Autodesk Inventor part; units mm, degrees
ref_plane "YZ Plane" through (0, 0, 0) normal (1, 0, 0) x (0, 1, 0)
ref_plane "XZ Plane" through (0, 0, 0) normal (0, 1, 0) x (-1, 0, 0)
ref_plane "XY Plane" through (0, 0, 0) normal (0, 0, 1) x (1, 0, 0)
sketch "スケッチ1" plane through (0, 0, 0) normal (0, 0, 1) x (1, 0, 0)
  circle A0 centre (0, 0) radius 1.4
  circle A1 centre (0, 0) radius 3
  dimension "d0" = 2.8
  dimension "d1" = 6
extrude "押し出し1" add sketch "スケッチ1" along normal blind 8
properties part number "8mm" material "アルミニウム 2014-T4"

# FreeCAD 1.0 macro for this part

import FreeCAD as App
import Part
import Sketcher

doc = App.newDocument("Part")
body = doc.addObject("PartDesign::Body", "Body")

# Sketch on XY plane
sketch1 = body.newObject("Sketcher::SketchObject", "Sketch")
sketch1.AttachmentSupport = (doc.getObject("XY_Plane"), [""])
sketch1.MapMode = "FlatFace"
sketch1.addGeometry(Part.Circle(App.Vector(0, 0, 0), App.Vector(0, 0, 1), 3), False)
sketch1.addGeometry(Part.Circle(App.Vector(0, 0, 0), App.Vector(0, 0, 1), 1.4), False)
sketch1.addConstraint(Sketcher.Constraint("Coincident", 0, 3, -1, 1))
sketch1.addConstraint(Sketcher.Constraint("Coincident", 1, 3, -1, 1))
sketch1.addConstraint(Sketcher.Constraint("Diameter", 0, 6.0))
sketch1.addConstraint(Sketcher.Constraint("Diameter", 1, 2.8))
pad1 = body.newObject("PartDesign::Pad", "Pad")
pad1.Profile = sketch1
pad1.Length = 8

doc.recompute()
